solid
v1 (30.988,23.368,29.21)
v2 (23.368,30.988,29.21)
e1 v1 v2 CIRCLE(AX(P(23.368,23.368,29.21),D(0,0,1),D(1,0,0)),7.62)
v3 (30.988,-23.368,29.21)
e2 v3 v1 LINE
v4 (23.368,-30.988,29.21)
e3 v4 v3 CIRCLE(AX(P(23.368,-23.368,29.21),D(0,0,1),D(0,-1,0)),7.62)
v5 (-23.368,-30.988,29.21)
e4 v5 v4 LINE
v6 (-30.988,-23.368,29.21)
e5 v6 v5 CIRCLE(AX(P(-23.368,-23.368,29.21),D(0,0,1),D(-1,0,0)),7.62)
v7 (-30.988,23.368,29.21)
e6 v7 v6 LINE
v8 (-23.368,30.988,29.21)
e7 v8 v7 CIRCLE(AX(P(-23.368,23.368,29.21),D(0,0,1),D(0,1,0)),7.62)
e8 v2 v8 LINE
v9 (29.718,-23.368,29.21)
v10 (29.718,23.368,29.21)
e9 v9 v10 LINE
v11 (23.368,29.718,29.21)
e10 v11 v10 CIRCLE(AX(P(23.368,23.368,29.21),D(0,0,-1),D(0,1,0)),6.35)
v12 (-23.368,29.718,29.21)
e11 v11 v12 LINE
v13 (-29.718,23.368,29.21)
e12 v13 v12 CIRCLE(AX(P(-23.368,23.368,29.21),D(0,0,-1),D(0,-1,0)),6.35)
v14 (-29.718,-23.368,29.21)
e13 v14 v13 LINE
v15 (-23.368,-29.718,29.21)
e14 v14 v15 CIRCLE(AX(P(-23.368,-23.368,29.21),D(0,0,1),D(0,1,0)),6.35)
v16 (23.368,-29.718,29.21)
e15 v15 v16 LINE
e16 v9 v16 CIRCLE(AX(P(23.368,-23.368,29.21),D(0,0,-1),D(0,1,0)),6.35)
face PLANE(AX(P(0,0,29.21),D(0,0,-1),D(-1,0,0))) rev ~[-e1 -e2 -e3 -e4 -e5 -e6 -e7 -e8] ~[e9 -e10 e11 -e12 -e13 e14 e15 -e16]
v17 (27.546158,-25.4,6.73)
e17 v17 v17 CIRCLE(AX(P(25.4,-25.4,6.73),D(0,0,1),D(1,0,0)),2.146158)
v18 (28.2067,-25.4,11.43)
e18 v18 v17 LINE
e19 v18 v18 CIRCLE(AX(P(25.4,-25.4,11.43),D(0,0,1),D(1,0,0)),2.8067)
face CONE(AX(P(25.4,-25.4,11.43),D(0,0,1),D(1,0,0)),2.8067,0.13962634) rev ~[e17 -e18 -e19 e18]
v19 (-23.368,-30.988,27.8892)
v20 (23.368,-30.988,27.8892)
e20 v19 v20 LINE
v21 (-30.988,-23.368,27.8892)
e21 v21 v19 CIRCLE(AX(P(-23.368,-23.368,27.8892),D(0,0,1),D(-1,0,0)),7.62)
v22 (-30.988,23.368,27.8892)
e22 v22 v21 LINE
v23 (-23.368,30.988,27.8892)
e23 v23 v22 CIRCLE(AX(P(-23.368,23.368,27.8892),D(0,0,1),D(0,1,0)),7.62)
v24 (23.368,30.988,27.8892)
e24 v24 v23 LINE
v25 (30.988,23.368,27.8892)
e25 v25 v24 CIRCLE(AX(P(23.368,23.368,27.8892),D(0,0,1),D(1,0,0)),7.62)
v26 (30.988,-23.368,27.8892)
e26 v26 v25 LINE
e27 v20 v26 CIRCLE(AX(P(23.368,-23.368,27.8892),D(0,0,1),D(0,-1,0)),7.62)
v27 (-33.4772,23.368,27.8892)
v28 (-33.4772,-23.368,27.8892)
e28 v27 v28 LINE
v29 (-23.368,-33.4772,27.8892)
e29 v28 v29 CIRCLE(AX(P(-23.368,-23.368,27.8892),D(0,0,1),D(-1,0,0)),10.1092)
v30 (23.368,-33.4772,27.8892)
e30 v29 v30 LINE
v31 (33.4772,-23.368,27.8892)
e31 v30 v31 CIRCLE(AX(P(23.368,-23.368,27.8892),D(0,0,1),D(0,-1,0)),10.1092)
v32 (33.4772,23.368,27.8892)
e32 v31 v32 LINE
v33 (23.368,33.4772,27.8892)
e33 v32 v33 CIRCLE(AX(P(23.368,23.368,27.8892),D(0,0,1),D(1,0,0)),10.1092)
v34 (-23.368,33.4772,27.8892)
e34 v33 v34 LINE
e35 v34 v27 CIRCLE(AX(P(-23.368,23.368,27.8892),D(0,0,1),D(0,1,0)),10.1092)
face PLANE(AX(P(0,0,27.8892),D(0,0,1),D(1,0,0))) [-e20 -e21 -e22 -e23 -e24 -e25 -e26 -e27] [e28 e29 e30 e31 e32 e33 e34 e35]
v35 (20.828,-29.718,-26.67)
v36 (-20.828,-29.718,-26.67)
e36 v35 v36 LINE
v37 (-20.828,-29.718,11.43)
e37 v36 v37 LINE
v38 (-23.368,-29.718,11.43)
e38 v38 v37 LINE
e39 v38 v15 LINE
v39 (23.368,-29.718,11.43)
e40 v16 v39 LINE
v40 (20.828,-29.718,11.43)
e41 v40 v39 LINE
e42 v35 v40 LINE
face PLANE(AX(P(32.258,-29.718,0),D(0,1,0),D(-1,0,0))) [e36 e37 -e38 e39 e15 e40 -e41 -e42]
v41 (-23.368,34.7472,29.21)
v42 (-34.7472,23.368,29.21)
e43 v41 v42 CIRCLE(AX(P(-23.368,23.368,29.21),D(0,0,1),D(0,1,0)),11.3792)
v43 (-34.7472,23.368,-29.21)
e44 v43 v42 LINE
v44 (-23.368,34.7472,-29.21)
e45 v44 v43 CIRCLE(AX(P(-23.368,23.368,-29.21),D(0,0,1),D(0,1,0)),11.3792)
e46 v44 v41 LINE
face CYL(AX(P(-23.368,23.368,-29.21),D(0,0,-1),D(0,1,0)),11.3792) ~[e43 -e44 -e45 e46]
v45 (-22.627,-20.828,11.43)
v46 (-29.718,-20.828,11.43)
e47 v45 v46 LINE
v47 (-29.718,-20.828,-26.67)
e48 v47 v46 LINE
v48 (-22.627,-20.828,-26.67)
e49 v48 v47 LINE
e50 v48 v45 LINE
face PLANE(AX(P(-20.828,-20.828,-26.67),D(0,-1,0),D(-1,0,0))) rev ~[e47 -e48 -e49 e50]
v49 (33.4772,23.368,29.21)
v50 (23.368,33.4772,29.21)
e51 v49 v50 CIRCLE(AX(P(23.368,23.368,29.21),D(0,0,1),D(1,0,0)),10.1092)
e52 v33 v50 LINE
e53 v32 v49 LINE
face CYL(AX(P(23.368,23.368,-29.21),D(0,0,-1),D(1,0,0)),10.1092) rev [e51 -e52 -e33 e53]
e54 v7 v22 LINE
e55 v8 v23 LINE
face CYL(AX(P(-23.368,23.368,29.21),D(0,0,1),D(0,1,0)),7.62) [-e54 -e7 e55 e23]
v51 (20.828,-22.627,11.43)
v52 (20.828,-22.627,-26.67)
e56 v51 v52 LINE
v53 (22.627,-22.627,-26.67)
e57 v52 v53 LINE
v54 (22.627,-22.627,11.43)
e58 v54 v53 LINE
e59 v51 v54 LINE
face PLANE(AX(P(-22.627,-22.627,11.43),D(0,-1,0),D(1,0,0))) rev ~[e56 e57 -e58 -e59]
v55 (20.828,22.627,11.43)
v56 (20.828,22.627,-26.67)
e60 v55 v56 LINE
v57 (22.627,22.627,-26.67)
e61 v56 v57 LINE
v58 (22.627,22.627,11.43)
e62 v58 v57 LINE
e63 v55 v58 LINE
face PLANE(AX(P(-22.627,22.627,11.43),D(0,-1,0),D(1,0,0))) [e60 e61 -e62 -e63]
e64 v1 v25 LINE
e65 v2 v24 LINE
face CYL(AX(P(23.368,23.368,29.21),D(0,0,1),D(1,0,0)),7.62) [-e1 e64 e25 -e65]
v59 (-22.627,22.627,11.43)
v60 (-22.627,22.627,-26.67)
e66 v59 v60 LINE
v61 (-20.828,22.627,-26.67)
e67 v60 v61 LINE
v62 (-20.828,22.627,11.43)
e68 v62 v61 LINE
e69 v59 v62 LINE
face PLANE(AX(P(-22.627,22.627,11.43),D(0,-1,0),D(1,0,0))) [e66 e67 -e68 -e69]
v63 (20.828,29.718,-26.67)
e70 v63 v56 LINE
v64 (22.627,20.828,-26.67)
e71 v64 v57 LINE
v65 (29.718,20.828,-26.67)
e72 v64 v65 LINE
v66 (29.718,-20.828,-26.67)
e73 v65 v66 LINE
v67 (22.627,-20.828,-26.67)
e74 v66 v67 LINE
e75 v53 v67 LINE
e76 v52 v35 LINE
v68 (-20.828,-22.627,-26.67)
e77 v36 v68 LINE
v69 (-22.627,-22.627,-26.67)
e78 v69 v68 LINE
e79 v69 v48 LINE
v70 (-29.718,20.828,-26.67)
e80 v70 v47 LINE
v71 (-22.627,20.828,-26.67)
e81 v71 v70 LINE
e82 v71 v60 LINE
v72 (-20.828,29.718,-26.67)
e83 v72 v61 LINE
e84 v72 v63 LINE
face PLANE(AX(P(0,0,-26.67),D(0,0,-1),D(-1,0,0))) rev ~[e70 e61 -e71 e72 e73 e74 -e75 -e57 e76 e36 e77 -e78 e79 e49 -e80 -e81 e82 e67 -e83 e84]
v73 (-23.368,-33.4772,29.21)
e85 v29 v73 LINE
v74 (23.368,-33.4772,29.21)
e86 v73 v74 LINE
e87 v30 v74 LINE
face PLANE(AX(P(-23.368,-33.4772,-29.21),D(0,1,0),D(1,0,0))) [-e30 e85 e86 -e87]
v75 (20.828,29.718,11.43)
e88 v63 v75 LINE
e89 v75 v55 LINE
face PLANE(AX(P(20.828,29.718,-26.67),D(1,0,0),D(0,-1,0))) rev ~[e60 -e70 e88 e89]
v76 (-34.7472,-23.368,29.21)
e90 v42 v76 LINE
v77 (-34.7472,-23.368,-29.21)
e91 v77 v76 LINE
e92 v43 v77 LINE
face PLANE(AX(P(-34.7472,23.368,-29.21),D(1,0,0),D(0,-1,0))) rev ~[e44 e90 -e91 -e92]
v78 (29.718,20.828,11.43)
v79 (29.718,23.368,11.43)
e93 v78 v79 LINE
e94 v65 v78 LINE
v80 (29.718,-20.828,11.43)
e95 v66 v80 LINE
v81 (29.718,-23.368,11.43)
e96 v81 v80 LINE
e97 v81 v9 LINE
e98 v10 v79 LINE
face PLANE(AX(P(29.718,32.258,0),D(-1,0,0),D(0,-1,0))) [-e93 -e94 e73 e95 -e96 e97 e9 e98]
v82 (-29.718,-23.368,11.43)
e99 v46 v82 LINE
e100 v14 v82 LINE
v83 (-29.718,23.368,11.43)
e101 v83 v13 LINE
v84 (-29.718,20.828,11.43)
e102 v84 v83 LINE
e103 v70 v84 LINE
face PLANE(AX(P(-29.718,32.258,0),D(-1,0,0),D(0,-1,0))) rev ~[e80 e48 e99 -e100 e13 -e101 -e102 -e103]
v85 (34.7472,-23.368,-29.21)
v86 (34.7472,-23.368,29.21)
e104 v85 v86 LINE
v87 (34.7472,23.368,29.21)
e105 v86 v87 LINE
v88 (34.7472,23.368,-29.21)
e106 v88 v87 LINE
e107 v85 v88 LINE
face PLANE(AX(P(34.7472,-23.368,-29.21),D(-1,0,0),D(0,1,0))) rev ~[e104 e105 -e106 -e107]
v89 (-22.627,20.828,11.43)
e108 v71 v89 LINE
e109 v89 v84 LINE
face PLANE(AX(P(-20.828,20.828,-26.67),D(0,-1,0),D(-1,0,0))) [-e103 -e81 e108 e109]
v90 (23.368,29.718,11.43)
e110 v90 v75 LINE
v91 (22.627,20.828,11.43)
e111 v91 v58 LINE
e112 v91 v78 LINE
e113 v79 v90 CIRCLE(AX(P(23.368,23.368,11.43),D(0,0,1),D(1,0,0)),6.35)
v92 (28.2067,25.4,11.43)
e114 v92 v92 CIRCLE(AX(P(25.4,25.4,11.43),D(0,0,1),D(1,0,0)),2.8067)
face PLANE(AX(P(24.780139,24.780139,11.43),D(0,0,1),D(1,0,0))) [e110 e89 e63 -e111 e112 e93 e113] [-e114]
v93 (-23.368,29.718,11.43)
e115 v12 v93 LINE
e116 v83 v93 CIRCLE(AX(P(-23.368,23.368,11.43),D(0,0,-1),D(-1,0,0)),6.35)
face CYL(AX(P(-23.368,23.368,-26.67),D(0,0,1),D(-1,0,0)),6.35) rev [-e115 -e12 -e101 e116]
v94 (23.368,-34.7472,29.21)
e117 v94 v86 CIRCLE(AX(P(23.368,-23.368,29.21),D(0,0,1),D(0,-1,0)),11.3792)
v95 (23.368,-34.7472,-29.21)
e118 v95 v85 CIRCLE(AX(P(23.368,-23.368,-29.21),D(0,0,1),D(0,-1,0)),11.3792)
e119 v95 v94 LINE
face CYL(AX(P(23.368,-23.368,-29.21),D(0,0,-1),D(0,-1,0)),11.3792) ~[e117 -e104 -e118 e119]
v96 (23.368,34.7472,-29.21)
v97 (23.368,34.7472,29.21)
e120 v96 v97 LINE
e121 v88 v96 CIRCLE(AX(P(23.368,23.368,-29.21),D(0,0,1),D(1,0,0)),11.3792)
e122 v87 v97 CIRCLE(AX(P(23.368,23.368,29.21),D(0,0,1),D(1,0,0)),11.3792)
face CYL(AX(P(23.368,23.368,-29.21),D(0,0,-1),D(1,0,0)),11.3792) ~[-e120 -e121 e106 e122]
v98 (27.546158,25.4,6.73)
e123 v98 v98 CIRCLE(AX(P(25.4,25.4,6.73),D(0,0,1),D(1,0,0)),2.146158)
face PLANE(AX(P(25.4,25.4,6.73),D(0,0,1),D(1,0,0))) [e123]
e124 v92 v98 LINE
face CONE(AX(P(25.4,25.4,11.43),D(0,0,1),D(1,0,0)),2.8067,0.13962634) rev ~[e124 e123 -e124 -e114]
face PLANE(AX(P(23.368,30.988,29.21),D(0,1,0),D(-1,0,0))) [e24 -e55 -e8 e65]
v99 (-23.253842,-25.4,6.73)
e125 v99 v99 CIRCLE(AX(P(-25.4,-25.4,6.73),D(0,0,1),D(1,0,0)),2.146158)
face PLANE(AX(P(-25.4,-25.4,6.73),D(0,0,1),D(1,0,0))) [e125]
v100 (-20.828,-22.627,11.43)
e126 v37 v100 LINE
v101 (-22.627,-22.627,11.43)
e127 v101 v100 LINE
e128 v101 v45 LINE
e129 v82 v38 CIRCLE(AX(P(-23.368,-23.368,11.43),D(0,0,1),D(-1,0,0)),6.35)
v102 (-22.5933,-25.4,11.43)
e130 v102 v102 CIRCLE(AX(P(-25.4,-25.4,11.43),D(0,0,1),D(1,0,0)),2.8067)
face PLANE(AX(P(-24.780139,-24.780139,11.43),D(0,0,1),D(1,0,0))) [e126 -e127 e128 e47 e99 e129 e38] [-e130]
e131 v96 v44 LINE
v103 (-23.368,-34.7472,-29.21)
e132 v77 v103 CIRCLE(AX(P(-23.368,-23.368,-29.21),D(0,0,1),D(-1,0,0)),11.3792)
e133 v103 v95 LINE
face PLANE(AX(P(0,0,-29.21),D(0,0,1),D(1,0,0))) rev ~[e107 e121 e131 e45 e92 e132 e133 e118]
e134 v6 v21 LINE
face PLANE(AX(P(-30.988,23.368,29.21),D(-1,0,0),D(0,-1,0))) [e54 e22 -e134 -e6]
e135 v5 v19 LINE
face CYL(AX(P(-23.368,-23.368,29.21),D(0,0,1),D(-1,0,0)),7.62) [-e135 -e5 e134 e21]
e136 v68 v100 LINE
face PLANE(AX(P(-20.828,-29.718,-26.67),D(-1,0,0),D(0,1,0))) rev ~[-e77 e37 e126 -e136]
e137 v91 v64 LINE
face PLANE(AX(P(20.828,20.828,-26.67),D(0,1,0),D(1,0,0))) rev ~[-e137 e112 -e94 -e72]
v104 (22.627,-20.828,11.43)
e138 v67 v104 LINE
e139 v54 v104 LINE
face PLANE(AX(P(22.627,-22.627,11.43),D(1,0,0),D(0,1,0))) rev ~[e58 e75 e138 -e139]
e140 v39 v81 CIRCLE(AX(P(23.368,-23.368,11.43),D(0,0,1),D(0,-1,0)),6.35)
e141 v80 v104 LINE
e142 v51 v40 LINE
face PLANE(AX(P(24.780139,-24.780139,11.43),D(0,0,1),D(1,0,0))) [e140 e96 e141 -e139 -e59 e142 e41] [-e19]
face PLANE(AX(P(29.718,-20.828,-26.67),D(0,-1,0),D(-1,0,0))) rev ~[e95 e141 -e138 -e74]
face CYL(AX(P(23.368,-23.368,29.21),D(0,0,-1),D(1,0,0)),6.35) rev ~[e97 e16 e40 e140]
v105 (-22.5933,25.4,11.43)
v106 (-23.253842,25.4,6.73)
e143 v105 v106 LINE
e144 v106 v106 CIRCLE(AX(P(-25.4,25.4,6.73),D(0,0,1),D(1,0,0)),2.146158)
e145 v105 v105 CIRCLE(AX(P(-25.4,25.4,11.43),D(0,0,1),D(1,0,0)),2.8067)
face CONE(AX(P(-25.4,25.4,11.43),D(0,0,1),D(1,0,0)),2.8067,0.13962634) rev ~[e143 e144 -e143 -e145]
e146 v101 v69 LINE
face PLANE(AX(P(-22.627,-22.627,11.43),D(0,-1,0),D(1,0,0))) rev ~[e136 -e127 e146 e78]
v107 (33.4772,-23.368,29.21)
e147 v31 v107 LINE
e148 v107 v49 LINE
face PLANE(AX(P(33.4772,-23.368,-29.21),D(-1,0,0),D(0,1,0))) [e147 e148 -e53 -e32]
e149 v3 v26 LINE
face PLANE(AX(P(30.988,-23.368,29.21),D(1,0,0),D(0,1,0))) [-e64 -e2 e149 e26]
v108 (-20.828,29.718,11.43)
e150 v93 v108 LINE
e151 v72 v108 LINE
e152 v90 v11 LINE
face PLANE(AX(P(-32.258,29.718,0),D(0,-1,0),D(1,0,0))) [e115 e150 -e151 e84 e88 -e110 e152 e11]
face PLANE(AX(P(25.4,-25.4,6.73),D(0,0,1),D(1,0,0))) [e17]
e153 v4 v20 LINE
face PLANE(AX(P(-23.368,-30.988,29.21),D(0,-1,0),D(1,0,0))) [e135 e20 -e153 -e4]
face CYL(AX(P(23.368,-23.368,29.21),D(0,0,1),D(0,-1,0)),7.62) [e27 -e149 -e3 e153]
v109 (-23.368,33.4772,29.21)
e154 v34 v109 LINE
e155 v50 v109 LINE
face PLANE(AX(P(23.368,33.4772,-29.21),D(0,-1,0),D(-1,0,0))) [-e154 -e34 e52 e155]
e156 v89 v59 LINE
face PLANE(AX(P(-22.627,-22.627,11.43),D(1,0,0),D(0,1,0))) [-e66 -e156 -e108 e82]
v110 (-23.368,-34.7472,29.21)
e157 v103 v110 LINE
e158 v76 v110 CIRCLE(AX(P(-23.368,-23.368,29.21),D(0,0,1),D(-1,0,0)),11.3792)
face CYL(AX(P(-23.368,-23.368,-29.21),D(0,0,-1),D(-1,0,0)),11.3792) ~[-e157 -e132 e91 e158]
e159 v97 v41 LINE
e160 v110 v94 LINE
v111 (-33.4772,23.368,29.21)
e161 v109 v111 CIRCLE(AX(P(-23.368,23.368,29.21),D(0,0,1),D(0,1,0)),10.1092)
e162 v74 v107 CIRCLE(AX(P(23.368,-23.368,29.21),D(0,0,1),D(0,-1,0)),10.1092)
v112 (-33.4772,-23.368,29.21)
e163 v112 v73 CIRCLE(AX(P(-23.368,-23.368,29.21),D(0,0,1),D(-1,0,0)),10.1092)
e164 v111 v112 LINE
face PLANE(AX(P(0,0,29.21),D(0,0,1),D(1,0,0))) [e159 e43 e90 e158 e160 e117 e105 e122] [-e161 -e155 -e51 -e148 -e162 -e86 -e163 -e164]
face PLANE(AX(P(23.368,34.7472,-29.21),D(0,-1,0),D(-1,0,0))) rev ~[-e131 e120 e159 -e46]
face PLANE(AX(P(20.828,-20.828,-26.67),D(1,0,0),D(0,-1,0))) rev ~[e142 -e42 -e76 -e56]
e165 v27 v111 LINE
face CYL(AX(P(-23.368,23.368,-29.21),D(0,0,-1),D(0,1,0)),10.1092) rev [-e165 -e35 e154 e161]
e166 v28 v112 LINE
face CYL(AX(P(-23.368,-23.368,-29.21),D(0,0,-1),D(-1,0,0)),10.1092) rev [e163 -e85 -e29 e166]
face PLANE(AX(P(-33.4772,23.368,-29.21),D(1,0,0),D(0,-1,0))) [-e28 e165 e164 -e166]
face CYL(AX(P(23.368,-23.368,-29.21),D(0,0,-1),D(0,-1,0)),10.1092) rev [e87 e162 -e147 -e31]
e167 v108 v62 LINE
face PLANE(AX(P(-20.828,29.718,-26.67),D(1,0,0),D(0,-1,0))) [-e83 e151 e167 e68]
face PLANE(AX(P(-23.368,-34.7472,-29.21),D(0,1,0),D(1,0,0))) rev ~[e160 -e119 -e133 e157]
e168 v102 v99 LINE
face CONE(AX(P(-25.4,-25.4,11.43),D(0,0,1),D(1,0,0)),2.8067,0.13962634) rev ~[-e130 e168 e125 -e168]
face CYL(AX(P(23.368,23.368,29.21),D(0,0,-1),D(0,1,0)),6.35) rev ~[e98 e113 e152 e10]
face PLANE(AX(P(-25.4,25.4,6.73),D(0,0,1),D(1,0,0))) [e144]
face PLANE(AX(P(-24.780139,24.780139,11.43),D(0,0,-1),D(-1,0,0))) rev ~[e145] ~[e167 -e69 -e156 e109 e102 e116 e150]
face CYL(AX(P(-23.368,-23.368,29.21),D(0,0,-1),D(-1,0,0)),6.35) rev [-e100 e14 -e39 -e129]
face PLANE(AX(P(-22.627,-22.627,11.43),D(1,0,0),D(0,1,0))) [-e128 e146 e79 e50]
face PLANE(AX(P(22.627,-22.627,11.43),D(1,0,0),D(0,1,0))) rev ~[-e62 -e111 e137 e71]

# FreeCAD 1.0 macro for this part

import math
import FreeCAD as App
import Part
import Sketcher

V = App.Vector
Q = App.Units.Quantity


def edges_at(feature, points):
    """Names of the edges that pass closest to the given points."""
    edges = feature.Shape.Edges
    near = lambda p: min(range(len(edges)), key=lambda i: edges[i].distToShape(Part.Vertex(*p))[0])
    return sorted({f"Edge{near(p) + 1}" for p in points})


def faces_at(feature, points):
    """Names of the faces that lie closest to the given points."""
    faces = feature.Shape.Faces
    near = lambda p: min(range(len(faces)), key=lambda i: faces[i].distToShape(Part.Vertex(*p))[0])
    return sorted({f"Face{near(p) + 1}" for p in points})


def add_polygon(sketch, points):
    """Adds a closed chain of lines whose ends are joined by coincident constraints."""
    first, n = sketch.GeometryCount, len(points)
    for a, b in zip(points, points[1:] + points[:1]):
        sketch.addGeometry(Part.LineSegment(App.Vector(*a, 0), App.Vector(*b, 0)), False)
    for i in range(n):
        sketch.addConstraint(Sketcher.Constraint("Coincident", first + i, 2, first + (i + 1) % n, 1))

doc = App.newDocument("Part")
body = doc.addObject("PartDesign::Body", "Body")

# Sketch on XY plane
sketch1 = body.newObject("Sketcher::SketchObject", "Sketch")
sketch1.AttachmentSupport = (doc.getObject("XY_Plane"), [""])
sketch1.MapMode = "FlatFace"
add_polygon(sketch1, [(-32, 32), (-32, -32), (32, -32), (32, 32)])  # lines 0-3
sketch1.addConstraint([
    Sketcher.Constraint("Vertical", 0),
    Sketcher.Constraint("Horizontal", 1),
    Sketcher.Constraint("Vertical", 2),
    Sketcher.Constraint("Horizontal", 3),
    Sketcher.Constraint("Symmetric", 0, 2, 2, 2, -1, 1),
    Sketcher.Constraint("Equal", 3, 0),
    Sketcher.Constraint("DistanceX", 1, 1, 1, 2, Q("2.54 in")),
])
pad1 = body.newObject("PartDesign::Pad", "Pad")
pad1.Profile = sketch1
pad1.Length = Q("2.3 in")
pad1.Midplane = True
doc.recompute()

thickness = body.newObject("PartDesign::Thickness", "Thickness")
thickness.Base = (pad1, faces_at(pad1, [(0, 0, 29.21)]))
thickness.Value = Q("0.1 in")
thickness.Reversed = True
thickness.Join = "Intersection"
doc.recompute()

fillet = body.newObject("PartDesign::Fillet", "Fillet")
fillet.Base = (thickness, edges_at(thickness, [
    (-32.258, -32.258, 0),
    (-32.258, 32.258, 0),
    (32.258, 32.258, 0),
    (32.258, -32.258, 0),
    (-29.718, -29.718, 1.27),
    (29.718, -29.718, 1.27),
    (29.718, 29.718, 1.27),
    (-29.718, 29.718, 1.27),
]))
fillet.Radius = Q("0.25 in")

# Sketch on XY plane
sketch2 = body.newObject("Sketcher::SketchObject", "Sketch001")
sketch2.AttachmentSupport = (doc.getObject("XY_Plane"), [""])
sketch2.MapMode = "FlatFace"
sketch2.AttachmentOffset = App.Placement(V(0, 0, -1.05 * 25.4), App.Rotation())
sketch2.addGeometry([
    Part.LineSegment(V(-20.8, -20.8, 0), V(-29.7, -20.8, 0)),  # 0
    Part.LineSegment(V(-29.7, -20.8, 0), V(-29.7, -23.4, 0)),  # 1
    Part.ArcOfCircle(Part.Circle(V(-23.4, -23.4, 0), V(0, 0, 1), 6.3), math.radians(180), math.radians(270)),  # 2
    Part.LineSegment(V(-23.4, -29.7, 0), V(-20.8, -29.7, 0)),  # 3
    Part.LineSegment(V(-20.8, -29.7, 0), V(-20.8, -20.8, 0)),  # 4
    Part.ArcOfCircle(Part.Circle(V(-23.4, 23.4, 0), V(0, 0, 1), 6.3), math.radians(90), math.radians(180)),  # 5
    Part.LineSegment(V(-29.7, 23.4, 0), V(-29.7, 20.8, 0)),  # 6
    Part.LineSegment(V(-29.7, 20.8, 0), V(-20.8, 20.8, 0)),  # 7
    Part.LineSegment(V(-20.8, 20.8, 0), V(-20.8, 29.7, 0)),  # 8
    Part.LineSegment(V(-20.8, 29.7, 0), V(-23.4, 29.7, 0)),  # 9
    Part.ArcOfCircle(Part.Circle(V(23.4, 23.4, 0), V(0, 0, 1), 6.3), math.radians(0), math.radians(90)),  # 10
    Part.LineSegment(V(23.4, 29.7, 0), V(20.8, 29.7, 0)),  # 11
    Part.LineSegment(V(20.8, 29.7, 0), V(20.8, 20.8, 0)),  # 12
    Part.LineSegment(V(20.8, 20.8, 0), V(29.7, 20.8, 0)),  # 13
    Part.LineSegment(V(29.7, 20.8, 0), V(29.7, 23.4, 0)),  # 14
    Part.ArcOfCircle(Part.Circle(V(23.4, -23.4, 0), V(0, 0, 1), 6.3), math.radians(-90), math.radians(0)),  # 15
    Part.LineSegment(V(29.7, -23.4, 0), V(29.7, -20.8, 0)),  # 16
    Part.LineSegment(V(29.7, -20.8, 0), V(20.8, -20.8, 0)),  # 17
    Part.LineSegment(V(20.8, -20.8, 0), V(20.8, -29.7, 0)),  # 18
    Part.LineSegment(V(20.8, -29.7, 0), V(23.4, -29.7, 0)),  # 19
], False)
sketch2.addConstraint([
    Sketcher.Constraint("Coincident", 0, 2, 1, 1),
    Sketcher.Constraint("Tangent", 1, 2, 2, 1),
    Sketcher.Constraint("Tangent", 2, 2, 3, 1),
    Sketcher.Constraint("Coincident", 3, 2, 4, 1),
    Sketcher.Constraint("Coincident", 4, 2, 0, 1),
    Sketcher.Constraint("Tangent", 5, 2, 6, 1),
    Sketcher.Constraint("Coincident", 6, 2, 7, 1),
    Sketcher.Constraint("Coincident", 7, 2, 8, 1),
    Sketcher.Constraint("Coincident", 8, 2, 9, 1),
    Sketcher.Constraint("Tangent", 9, 2, 5, 1),
    Sketcher.Constraint("Tangent", 10, 2, 11, 1),
    Sketcher.Constraint("Coincident", 11, 2, 12, 1),
    Sketcher.Constraint("Coincident", 12, 2, 13, 1),
    Sketcher.Constraint("Coincident", 13, 2, 14, 1),
    Sketcher.Constraint("Tangent", 14, 2, 10, 1),
    Sketcher.Constraint("Tangent", 15, 2, 16, 1),
    Sketcher.Constraint("Coincident", 16, 2, 17, 1),
    Sketcher.Constraint("Coincident", 17, 2, 18, 1),
    Sketcher.Constraint("Coincident", 18, 2, 19, 1),
    Sketcher.Constraint("Tangent", 19, 2, 15, 1),
    Sketcher.Constraint("Horizontal", 0),
    Sketcher.Constraint("Vertical", 1),
    Sketcher.Constraint("Horizontal", 3),
    Sketcher.Constraint("Vertical", 4),
    Sketcher.Constraint("Vertical", 6),
    Sketcher.Constraint("Horizontal", 7),
    Sketcher.Constraint("Vertical", 8),
    Sketcher.Constraint("Horizontal", 9),
    Sketcher.Constraint("Horizontal", 11),
    Sketcher.Constraint("Vertical", 12),
    Sketcher.Constraint("Horizontal", 13),
    Sketcher.Constraint("Vertical", 14),
    Sketcher.Constraint("Vertical", 16),
    Sketcher.Constraint("Horizontal", 17),
    Sketcher.Constraint("Vertical", 18),
    Sketcher.Constraint("Horizontal", 19),
    Sketcher.Constraint("Equal", 2, 5),
    Sketcher.Constraint("Equal", 5, 10),
    Sketcher.Constraint("Equal", 10, 15),
    Sketcher.Constraint("Symmetric", 2, 3, 10, 3, -1, 1),
    Sketcher.Constraint("Symmetric", 5, 3, 15, 3, -1, 1),
    Sketcher.Constraint("Symmetric", 4, 2, 12, 2, -1, 1),
    Sketcher.Constraint("Symmetric", 7, 2, 17, 2, -1, 1),
    Sketcher.Constraint("Symmetric", 5, 3, 10, 3, -2),
    Sketcher.Constraint("Symmetric", 7, 2, 12, 2, -2),
    Sketcher.Constraint("Equal", 19, 1),
    Sketcher.Constraint("Radius", 2, Q("0.25 in")),
    Sketcher.Constraint("DistanceX", 3, 1, 3, 2, Q("0.1 in")),
    Sketcher.Constraint("DistanceX", 2, 3, -1, 1, Q("0.92 in")),
    Sketcher.Constraint("DistanceY", 2, 3, -1, 1, Q("0.92 in")),
])
pad2 = body.newObject("PartDesign::Pad", "Pad001")
pad2.Profile = sketch2
pad2.Length = Q("1.5 in")
body2 = doc.addObject("PartDesign::Body", "Body001")

# Sketch on XY plane
sketch3 = body2.newObject("Sketcher::SketchObject", "Sketch002")
sketch3.AttachmentSupport = (doc.getObject("XY_Plane001"), [""])
sketch3.MapMode = "FlatFace"
sketch3.AttachmentOffset = App.Placement(V(0, 0, 0.45 * 25.4), App.Rotation())
sketch3.addGeometry(Part.Circle(V(-25.4, -25.4, 0), V(0, 0, 1), 2.8), False)
sketch3.addConstraint([
    Sketcher.Constraint("Diameter", 0, Q("0.221 in")),
    Sketcher.Constraint("DistanceX", 0, 3, -1, 1, Q("1 in")),
    Sketcher.Constraint("DistanceY", 0, 3, -1, 1, Q("1 in")),
])
pad3 = body2.newObject("PartDesign::Pad", "Pad002")
pad3.Profile = sketch3
pad3.Length = 4.7
pad3.Reversed = True
doc.recompute()

datumplane = body2.newObject("PartDesign::Plane", "DatumPlane")
datumplane.AttachmentSupport = (doc.getObject("XY_Plane001"), [""])
datumplane.MapMode = "FlatFace"
datumplane.AttachmentOffset = App.Placement(V(0, 0, 0.45 * 25.4), App.Rotation())
draft = body2.newObject("PartDesign::Draft", "Draft")
draft.Base = (pad3, faces_at(pad3, [(-28.207, -25.4, 9.08)]))
draft.NeutralPlane = (datumplane, [""])
draft.Angle = 8
draft.Reversed = True
doc.recompute()

boolean = body.newObject("PartDesign::Boolean", "Boolean")
boolean.Type = "Cut"
boolean.addObjects([body2])
body3 = doc.addObject("PartDesign::Body", "Body002")

# Sketch on XY plane
sketch4 = body3.newObject("Sketcher::SketchObject", "Sketch003")
sketch4.AttachmentSupport = (doc.getObject("XY_Plane002"), [""])
sketch4.MapMode = "FlatFace"
sketch4.AttachmentOffset = App.Placement(V(0, 0, 0.45 * 25.4), App.Rotation())
sketch4.addGeometry(Part.Circle(V(-25.4, 25.4, 0), V(0, 0, 1), 2.8), False)
sketch4.addConstraint([
    Sketcher.Constraint("Diameter", 0, Q("0.221 in")),
    Sketcher.Constraint("DistanceX", 0, 3, -1, 1, Q("1 in")),
    Sketcher.Constraint("DistanceY", -1, 1, 0, 3, Q("1 in")),
])
pad4 = body3.newObject("PartDesign::Pad", "Pad003")
pad4.Profile = sketch4
pad4.Length = 4.7
pad4.Reversed = True
doc.recompute()

datumplane2 = body3.newObject("PartDesign::Plane", "DatumPlane001")
datumplane2.AttachmentSupport = (doc.getObject("XY_Plane002"), [""])
datumplane2.MapMode = "FlatFace"
datumplane2.AttachmentOffset = App.Placement(V(0, 0, 0.45 * 25.4), App.Rotation())
draft2 = body3.newObject("PartDesign::Draft", "Draft001")
draft2.Base = (pad4, faces_at(pad4, [(-28.207, 25.4, 9.08)]))
draft2.NeutralPlane = (datumplane2, [""])
draft2.Angle = 8
draft2.Reversed = True
doc.recompute()

boolean2 = body.newObject("PartDesign::Boolean", "Boolean001")
boolean2.Type = "Cut"
boolean2.addObjects([body3])
body4 = doc.addObject("PartDesign::Body", "Body003")

# Sketch on XY plane
sketch5 = body4.newObject("Sketcher::SketchObject", "Sketch004")
sketch5.AttachmentSupport = (doc.getObject("XY_Plane003"), [""])
sketch5.MapMode = "FlatFace"
sketch5.AttachmentOffset = App.Placement(V(0, 0, 0.45 * 25.4), App.Rotation())
sketch5.addGeometry(Part.Circle(V(25.4, 25.4, 0), V(0, 0, 1), 2.8), False)
sketch5.addConstraint([
    Sketcher.Constraint("Diameter", 0, Q("0.221 in")),
    Sketcher.Constraint("DistanceX", -1, 1, 0, 3, Q("1 in")),
    Sketcher.Constraint("DistanceY", -1, 1, 0, 3, Q("1 in")),
])
pad5 = body4.newObject("PartDesign::Pad", "Pad004")
pad5.Profile = sketch5
pad5.Length = 4.7
pad5.Reversed = True
doc.recompute()

datumplane3 = body4.newObject("PartDesign::Plane", "DatumPlane002")
datumplane3.AttachmentSupport = (doc.getObject("XY_Plane003"), [""])
datumplane3.MapMode = "FlatFace"
datumplane3.AttachmentOffset = App.Placement(V(0, 0, 0.45 * 25.4), App.Rotation())
draft3 = body4.newObject("PartDesign::Draft", "Draft002")
draft3.Base = (pad5, faces_at(pad5, [(22.593, 25.4, 9.08)]))
draft3.NeutralPlane = (datumplane3, [""])
draft3.Angle = 8
draft3.Reversed = True
doc.recompute()

boolean3 = body.newObject("PartDesign::Boolean", "Boolean002")
boolean3.Type = "Cut"
boolean3.addObjects([body4])
body5 = doc.addObject("PartDesign::Body", "Body004")

# Sketch on XY plane
sketch6 = body5.newObject("Sketcher::SketchObject", "Sketch005")
sketch6.AttachmentSupport = (doc.getObject("XY_Plane004"), [""])
sketch6.MapMode = "FlatFace"
sketch6.AttachmentOffset = App.Placement(V(0, 0, 0.45 * 25.4), App.Rotation())
sketch6.addGeometry(Part.Circle(V(25.4, -25.4, 0), V(0, 0, 1), 2.8), False)
sketch6.addConstraint([
    Sketcher.Constraint("Diameter", 0, Q("0.221 in")),
    Sketcher.Constraint("DistanceX", -1, 1, 0, 3, Q("1 in")),
    Sketcher.Constraint("DistanceY", 0, 3, -1, 1, Q("1 in")),
])
pad6 = body5.newObject("PartDesign::Pad", "Pad005")
pad6.Profile = sketch6
pad6.Length = 4.7
pad6.Reversed = True
doc.recompute()

datumplane4 = body5.newObject("PartDesign::Plane", "DatumPlane003")
datumplane4.AttachmentSupport = (doc.getObject("XY_Plane004"), [""])
datumplane4.MapMode = "FlatFace"
datumplane4.AttachmentOffset = App.Placement(V(0, 0, 0.45 * 25.4), App.Rotation())
draft4 = body5.newObject("PartDesign::Draft", "Draft003")
draft4.Base = (pad6, faces_at(pad6, [(22.593, -25.4, 9.08)]))
draft4.NeutralPlane = (datumplane4, [""])
draft4.Angle = 8
draft4.Reversed = True
doc.recompute()

boolean4 = body.newObject("PartDesign::Boolean", "Boolean003")
boolean4.Type = "Cut"
boolean4.addObjects([body5])

# Sketch on XY plane
sketch7 = body.newObject("Sketcher::SketchObject", "Sketch006")
sketch7.AttachmentSupport = (doc.getObject("XY_Plane"), [""])
sketch7.MapMode = "FlatFace"
sketch7.AttachmentOffset = App.Placement(V(0, 0, 0.45 * 25.4), App.Rotation())
add_polygon(sketch7, [(-23, 23), (-23, -23), (23, -23), (23, 23)])  # lines 0-3
sketch7.addConstraint([
    Sketcher.Constraint("Vertical", 0),
    Sketcher.Constraint("Horizontal", 1),
    Sketcher.Constraint("Vertical", 2),
    Sketcher.Constraint("Horizontal", 3),
    Sketcher.Constraint("Symmetric", 0, 2, 2, 2, -1, 1),
    Sketcher.Constraint("Equal", 3, 0),
    Sketcher.Constraint("DistanceX", 1, 1, 1, 2, Q("45.254 mm")),
])
pocket1 = body.newObject("PartDesign::Pocket", "Pocket")
pocket1.Profile = sketch7
pocket1.Length = Q("1.5 in")

# Sketch on XY plane
sketch8 = body.newObject("Sketcher::SketchObject", "Sketch007")
sketch8.AttachmentSupport = (doc.getObject("XY_Plane"), [""])
sketch8.MapMode = "FlatFace"
sketch8.AttachmentOffset = App.Placement(V(0, 0, 1.15 * 25.4), App.Rotation())
add_polygon(sketch8, [(-44, 44), (-44, -44), (44, -44), (44, 44)])  # lines 0-3
sketch8.addGeometry(Part.LineSegment(V(-23, 31, 0), V(23, 31, 0)), False)  # 4
sketch8.addGeometry(Part.ArcOfCircle(Part.Circle(V(23, 23, 0), V(0, 0, 1), 8), math.radians(0), math.radians(90)), False)  # 5
sketch8.addGeometry(Part.LineSegment(V(31, 23, 0), V(31, -23, 0)), False)  # 6
sketch8.addGeometry(Part.ArcOfCircle(Part.Circle(V(23, -23, 0), V(0, 0, 1), 8), math.radians(-90), math.radians(0)), False)  # 7
sketch8.addGeometry(Part.LineSegment(V(23, -31, 0), V(-23, -31, 0)), False)  # 8
sketch8.addGeometry(Part.ArcOfCircle(Part.Circle(V(-23, -23, 0), V(0, 0, 1), 8), math.radians(180), math.radians(270)), False)  # 9
sketch8.addGeometry(Part.LineSegment(V(-31, -23, 0), V(-31, 23, 0)), False)  # 10
sketch8.addGeometry(Part.ArcOfCircle(Part.Circle(V(-23, 23, 0), V(0, 0, 1), 8), math.radians(90), math.radians(180)), False)  # 11
sketch8.addGeometry(Part.LineSegment(V(23, 30, 0), V(-23, 30, 0)), False)  # 12
sketch8.addGeometry(Part.ArcOfCircle(Part.Circle(V(-23, 23, 0), V(0, 0, 1), 6), math.radians(90), math.radians(180)), False)  # 13
sketch8.addGeometry(Part.LineSegment(V(-30, 23, 0), V(-30, -23, 0)), False)  # 14
sketch8.addGeometry(Part.ArcOfCircle(Part.Circle(V(-23, -23, 0), V(0, 0, 1), 6), math.radians(180), math.radians(270)), False)  # 15
sketch8.addGeometry(Part.LineSegment(V(-23, -30, 0), V(23, -30, 0)), False)  # 16
sketch8.addGeometry(Part.ArcOfCircle(Part.Circle(V(23, -23, 0), V(0, 0, 1), 6), math.radians(-90), math.radians(0)), False)  # 17
sketch8.addGeometry(Part.LineSegment(V(30, -23, 0), V(30, 23, 0)), False)  # 18
sketch8.addGeometry(Part.ArcOfCircle(Part.Circle(V(23, 23, 0), V(0, 0, 1), 6), math.radians(0), math.radians(90)), False)  # 19
sketch8.addConstraint([
    Sketcher.Constraint("Tangent", 4, 2, 5, 2),
    Sketcher.Constraint("Tangent", 5, 1, 6, 1),
    Sketcher.Constraint("Tangent", 6, 2, 7, 2),
    Sketcher.Constraint("Tangent", 7, 1, 8, 1),
    Sketcher.Constraint("Tangent", 8, 2, 9, 2),
    Sketcher.Constraint("Tangent", 9, 1, 10, 1),
    Sketcher.Constraint("Tangent", 10, 2, 11, 2),
    Sketcher.Constraint("Tangent", 11, 1, 4, 1),
    Sketcher.Constraint("Tangent", 12, 2, 13, 1),
    Sketcher.Constraint("Tangent", 13, 2, 14, 1),
    Sketcher.Constraint("Tangent", 14, 2, 15, 1),
    Sketcher.Constraint("Tangent", 15, 2, 16, 1),
    Sketcher.Constraint("Tangent", 16, 2, 17, 1),
    Sketcher.Constraint("Tangent", 17, 2, 18, 1),
    Sketcher.Constraint("Tangent", 18, 2, 19, 1),
    Sketcher.Constraint("Tangent", 19, 2, 12, 1),
    Sketcher.Constraint("Vertical", 0),
    Sketcher.Constraint("Horizontal", 1),
    Sketcher.Constraint("Vertical", 2),
    Sketcher.Constraint("Horizontal", 3),
    Sketcher.Constraint("Horizontal", 4),
    Sketcher.Constraint("Vertical", 6),
    Sketcher.Constraint("Horizontal", 8),
    Sketcher.Constraint("Vertical", 10),
    Sketcher.Constraint("Horizontal", 12),
    Sketcher.Constraint("Vertical", 14),
    Sketcher.Constraint("Horizontal", 16),
    Sketcher.Constraint("Vertical", 18),
    Sketcher.Constraint("Coincident", 13, 3, 11, 3),
    Sketcher.Constraint("Coincident", 15, 3, 9, 3),
    Sketcher.Constraint("Coincident", 17, 3, 7, 3),
    Sketcher.Constraint("Equal", 5, 7),
    Sketcher.Constraint("Equal", 7, 9),
    Sketcher.Constraint("Equal", 9, 11),
    Sketcher.Constraint("Equal", 17, 19),
    Sketcher.Constraint("Symmetric", 5, 3, 9, 3, -1, 1),
    Sketcher.Constraint("Symmetric", 0, 2, 2, 2, -1, 1),
    Sketcher.Constraint("Equal", 3, 0),
    Sketcher.Constraint("Equal", 16, 6),
    Sketcher.Constraint("Radius", 5, Q("0.3 in")),
    Sketcher.Constraint("Radius", 13, Q("0.25 in")),
    Sketcher.Constraint("DistanceX", 4, 1, 4, 2, Q("1.84 in")),
    Sketcher.Constraint("DistanceX", 1, 1, 1, 2, Q("88.184 mm")),
])
pocket2 = body.newObject("PartDesign::Pocket", "Pocket001")
pocket2.Profile = sketch8
pocket2.Length = Q("0.052 in")

# Sketch on XY plane
sketch9 = body.newObject("Sketcher::SketchObject", "Sketch008")
sketch9.AttachmentSupport = (doc.getObject("XY_Plane"), [""])
sketch9.MapMode = "FlatFace"
sketch9.AttachmentOffset = App.Placement(V(0, 0, -1.15 * 25.4), App.Rotation())
sketch9.addGeometry([
    Part.LineSegment(V(33, -23, 0), V(33, 23, 0)),  # 0
    Part.ArcOfCircle(Part.Circle(V(23, 23, 0), V(0, 0, 1), 10), math.radians(0), math.radians(90)),  # 1
    Part.LineSegment(V(23, 33, 0), V(-23, 33, 0)),  # 2
    Part.ArcOfCircle(Part.Circle(V(-23, 23, 0), V(0, 0, 1), 10), math.radians(90), math.radians(180)),  # 3
    Part.LineSegment(V(-33, 23, 0), V(-33, -23, 0)),  # 4
    Part.ArcOfCircle(Part.Circle(V(-23, -23, 0), V(0, 0, 1), 10), math.radians(-180), math.radians(-90)),  # 5
    Part.LineSegment(V(-23, -33, 0), V(23, -33, 0)),  # 6
    Part.ArcOfCircle(Part.Circle(V(23, -23, 0), V(0, 0, 1), 10), math.radians(-90), math.radians(0)),  # 7
    Part.LineSegment(V(-23, 32, 0), V(23, 32, 0)),  # 8
    Part.ArcOfCircle(Part.Circle(V(23, 23, 0), V(0, 0, 1), 9), math.radians(0), math.radians(90)),  # 9
    Part.LineSegment(V(32, 23, 0), V(32, -23, 0)),  # 10
    Part.ArcOfCircle(Part.Circle(V(23, -23, 0), V(0, 0, 1), 9), math.radians(-90), math.radians(0)),  # 11
    Part.LineSegment(V(23, -32, 0), V(-23, -32, 0)),  # 12
    Part.ArcOfCircle(Part.Circle(V(-23, -23, 0), V(0, 0, 1), 9), math.radians(-180), math.radians(-90)),  # 13
    Part.LineSegment(V(-32, -23, 0), V(-32, 23, 0)),  # 14
    Part.ArcOfCircle(Part.Circle(V(-23, 23, 0), V(0, 0, 1), 9), math.radians(90), math.radians(180)),  # 15
], False)
sketch9.addConstraint([
    Sketcher.Constraint("Tangent", 0, 2, 1, 1),
    Sketcher.Constraint("Tangent", 1, 2, 2, 1),
    Sketcher.Constraint("Tangent", 2, 2, 3, 1),
    Sketcher.Constraint("Tangent", 3, 2, 4, 1),
    Sketcher.Constraint("Tangent", 4, 2, 5, 1),
    Sketcher.Constraint("Tangent", 5, 2, 6, 1),
    Sketcher.Constraint("Tangent", 6, 2, 7, 1),
    Sketcher.Constraint("Tangent", 7, 2, 0, 1),
    Sketcher.Constraint("Tangent", 8, 2, 9, 2),
    Sketcher.Constraint("Tangent", 9, 1, 10, 1),
    Sketcher.Constraint("Tangent", 10, 2, 11, 2),
    Sketcher.Constraint("Tangent", 11, 1, 12, 1),
    Sketcher.Constraint("Tangent", 12, 2, 13, 2),
    Sketcher.Constraint("Tangent", 13, 1, 14, 1),
    Sketcher.Constraint("Tangent", 14, 2, 15, 2),
    Sketcher.Constraint("Tangent", 15, 1, 8, 1),
    Sketcher.Constraint("Vertical", 0),
    Sketcher.Constraint("Horizontal", 2),
    Sketcher.Constraint("Vertical", 4),
    Sketcher.Constraint("Horizontal", 6),
    Sketcher.Constraint("Horizontal", 8),
    Sketcher.Constraint("Vertical", 10),
    Sketcher.Constraint("Horizontal", 12),
    Sketcher.Constraint("Vertical", 14),
    Sketcher.Constraint("Coincident", 9, 3, 1, 3),
    Sketcher.Constraint("Coincident", 11, 3, 7, 3),
    Sketcher.Constraint("Coincident", 13, 3, 5, 3),
    Sketcher.Constraint("Equal", 1, 3),
    Sketcher.Constraint("Equal", 3, 5),
    Sketcher.Constraint("Equal", 5, 7),
    Sketcher.Constraint("Equal", 13, 15),
    Sketcher.Constraint("Symmetric", 1, 3, 5, 3, -1, 1),
    Sketcher.Constraint("Equal", 12, 0),
    Sketcher.Constraint("Radius", 1, Q("0.398 in")),
    Sketcher.Constraint("Radius", 9, Q("0.348 in")),
    Sketcher.Constraint("DistanceX", 2, 2, 2, 1, Q("1.84 in")),
])
pad7 = body.newObject("PartDesign::Pad", "Pad006")
pad7.Profile = sketch9
pad7.Length = Q("2.248 in")

# Sketch on XY plane
sketch10 = body.newObject("Sketcher::SketchObject", "Sketch009")
sketch10.AttachmentSupport = (doc.getObject("XY_Plane"), [""])
sketch10.MapMode = "FlatFace"
sketch10.AttachmentOffset = App.Placement(V(0, 0, -1.15 * 25.4), App.Rotation())
sketch10.addGeometry([
    Part.LineSegment(V(35, -23, 0), V(35, 23, 0)),  # 0
    Part.ArcOfCircle(Part.Circle(V(23, 23, 0), V(0, 0, 1), 11), math.radians(0), math.radians(90)),  # 1
    Part.LineSegment(V(23, 35, 0), V(-23, 35, 0)),  # 2
    Part.ArcOfCircle(Part.Circle(V(-23, 23, 0), V(0, 0, 1), 11), math.radians(90), math.radians(180)),  # 3
    Part.LineSegment(V(-35, 23, 0), V(-35, -23, 0)),  # 4
    Part.ArcOfCircle(Part.Circle(V(-23, -23, 0), V(0, 0, 1), 11), math.radians(-180), math.radians(-90)),  # 5
    Part.LineSegment(V(-23, -35, 0), V(23, -35, 0)),  # 6
    Part.ArcOfCircle(Part.Circle(V(23, -23, 0), V(0, 0, 1), 11), math.radians(-90), math.radians(0)),  # 7
    Part.LineSegment(V(-23, 33, 0), V(23, 33, 0)),  # 8
    Part.ArcOfCircle(Part.Circle(V(23, 23, 0), V(0, 0, 1), 10), math.radians(0), math.radians(90)),  # 9
    Part.LineSegment(V(33, 23, 0), V(33, -23, 0)),  # 10
    Part.ArcOfCircle(Part.Circle(V(23, -23, 0), V(0, 0, 1), 10), math.radians(-90), math.radians(0)),  # 11
    Part.LineSegment(V(23, -33, 0), V(-23, -33, 0)),  # 12
    Part.ArcOfCircle(Part.Circle(V(-23, -23, 0), V(0, 0, 1), 10), math.radians(-180), math.radians(-90)),  # 13
    Part.LineSegment(V(-33, -23, 0), V(-33, 23, 0)),  # 14
    Part.ArcOfCircle(Part.Circle(V(-23, 23, 0), V(0, 0, 1), 10), math.radians(90), math.radians(180)),  # 15
], False)
sketch10.addConstraint([
    Sketcher.Constraint("Tangent", 0, 2, 1, 1),
    Sketcher.Constraint("Tangent", 1, 2, 2, 1),
    Sketcher.Constraint("Tangent", 2, 2, 3, 1),
    Sketcher.Constraint("Tangent", 3, 2, 4, 1),
    Sketcher.Constraint("Tangent", 4, 2, 5, 1),
    Sketcher.Constraint("Tangent", 5, 2, 6, 1),
    Sketcher.Constraint("Tangent", 6, 2, 7, 1),
    Sketcher.Constraint("Tangent", 7, 2, 0, 1),
    Sketcher.Constraint("Tangent", 8, 2, 9, 2),
    Sketcher.Constraint("Tangent", 9, 1, 10, 1),
    Sketcher.Constraint("Tangent", 10, 2, 11, 2),
    Sketcher.Constraint("Tangent", 11, 1, 12, 1),
    Sketcher.Constraint("Tangent", 12, 2, 13, 2),
    Sketcher.Constraint("Tangent", 13, 1, 14, 1),
    Sketcher.Constraint("Tangent", 14, 2, 15, 2),
    Sketcher.Constraint("Tangent", 15, 1, 8, 1),
    Sketcher.Constraint("Vertical", 0),
    Sketcher.Constraint("Horizontal", 2),
    Sketcher.Constraint("Vertical", 4),
    Sketcher.Constraint("Horizontal", 6),
    Sketcher.Constraint("Horizontal", 8),
    Sketcher.Constraint("Vertical", 10),
    Sketcher.Constraint("Horizontal", 12),
    Sketcher.Constraint("Vertical", 14),
    Sketcher.Constraint("Coincident", 9, 3, 1, 3),
    Sketcher.Constraint("Coincident", 11, 3, 7, 3),
    Sketcher.Constraint("Coincident", 13, 3, 5, 3),
    Sketcher.Constraint("Equal", 1, 3),
    Sketcher.Constraint("Equal", 3, 5),
    Sketcher.Constraint("Equal", 5, 7),
    Sketcher.Constraint("Equal", 13, 15),
    Sketcher.Constraint("Symmetric", 1, 3, 5, 3, -1, 1),
    Sketcher.Constraint("Equal", 12, 0),
    Sketcher.Constraint("Radius", 1, Q("0.448 in")),
    Sketcher.Constraint("Radius", 9, Q("0.398 in")),
    Sketcher.Constraint("DistanceX", 2, 2, 2, 1, Q("1.84 in")),
])
pad8 = body.newObject("PartDesign::Pad", "Pad007")
pad8.Profile = sketch10
pad8.Length = Q("2.3 in")

doc.recompute()
